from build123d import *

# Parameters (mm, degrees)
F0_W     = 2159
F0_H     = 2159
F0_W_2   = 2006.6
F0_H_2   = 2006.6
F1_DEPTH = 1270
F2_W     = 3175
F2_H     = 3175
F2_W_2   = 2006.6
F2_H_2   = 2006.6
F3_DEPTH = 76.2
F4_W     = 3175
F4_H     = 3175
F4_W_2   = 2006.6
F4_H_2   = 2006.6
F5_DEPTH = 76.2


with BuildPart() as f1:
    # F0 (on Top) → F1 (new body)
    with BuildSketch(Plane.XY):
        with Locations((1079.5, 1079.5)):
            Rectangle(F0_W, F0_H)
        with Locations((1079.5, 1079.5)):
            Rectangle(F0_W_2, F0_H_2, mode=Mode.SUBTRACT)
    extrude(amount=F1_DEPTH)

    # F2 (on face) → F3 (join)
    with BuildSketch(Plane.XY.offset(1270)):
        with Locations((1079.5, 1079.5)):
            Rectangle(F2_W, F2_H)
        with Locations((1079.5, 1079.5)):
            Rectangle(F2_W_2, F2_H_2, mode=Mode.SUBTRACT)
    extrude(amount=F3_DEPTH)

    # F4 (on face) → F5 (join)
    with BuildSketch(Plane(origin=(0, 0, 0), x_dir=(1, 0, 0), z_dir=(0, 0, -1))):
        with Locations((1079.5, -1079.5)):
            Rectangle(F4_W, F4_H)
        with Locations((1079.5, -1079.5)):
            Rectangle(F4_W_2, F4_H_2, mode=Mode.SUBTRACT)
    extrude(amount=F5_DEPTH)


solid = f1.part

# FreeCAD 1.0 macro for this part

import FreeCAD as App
import Part
import Sketcher
Q = App.Units.Quantity

doc = App.newDocument("Part")
body = doc.addObject("PartDesign::Body", "Body")

sketch1 = body.newObject("Sketcher::SketchObject", "Sketch")
sketch1.AttachmentSupport = (doc.getObject("XY_Plane"), [""])
sketch1.MapMode = "FlatFace"
sketch1.addGeometry([
    Part.LineSegment(App.Vector(0, 2159, 0), App.Vector(0, 0, 0)),
    Part.LineSegment(App.Vector(0, 0, 0), App.Vector(2159, 0, 0)),
    Part.LineSegment(App.Vector(2159, 0, 0), App.Vector(2159, 2159, 0)),
    Part.LineSegment(App.Vector(2159, 2159, 0), App.Vector(0, 2159, 0)),
    Part.LineSegment(App.Vector(2083, 76, 0), App.Vector(76, 76, 0)),
    Part.LineSegment(App.Vector(76, 76, 0), App.Vector(76, 2083, 0)),
    Part.LineSegment(App.Vector(76, 2083, 0), App.Vector(2083, 2083, 0)),
    Part.LineSegment(App.Vector(2083, 2083, 0), App.Vector(2083, 76, 0)),
], False)
sketch1.addConstraint([
    Sketcher.Constraint("Coincident", 0, 2, 1, 1),
    Sketcher.Constraint("Coincident", 1, 2, 2, 1),
    Sketcher.Constraint("Coincident", 2, 2, 3, 1),
    Sketcher.Constraint("Coincident", 3, 2, 0, 1),
    Sketcher.Constraint("Coincident", 4, 2, 5, 1),
    Sketcher.Constraint("Coincident", 5, 2, 6, 1),
    Sketcher.Constraint("Coincident", 6, 2, 7, 1),
    Sketcher.Constraint("Coincident", 7, 2, 4, 1),
    Sketcher.Constraint("Vertical", 0),
    Sketcher.Constraint("Horizontal", 1),
    Sketcher.Constraint("Vertical", 2),
    Sketcher.Constraint("Horizontal", 3),
    Sketcher.Constraint("Horizontal", 4),
    Sketcher.Constraint("Vertical", 5),
    Sketcher.Constraint("Horizontal", 6),
    Sketcher.Constraint("Vertical", 7),
    Sketcher.Constraint("Coincident", 0, 2, -1, 1),
    Sketcher.Constraint("Equal", 3, 0),
    Sketcher.Constraint("Equal", 6, 5),
    Sketcher.Constraint("DistanceX", 1, 1, 1, 2, Q("85 in")),
    Sketcher.Constraint("DistanceX", 4, 2, 4, 1, Q("79 in")),
    Sketcher.Constraint("DistanceX", -1, 1, 4, 2, Q("3 in")),
    Sketcher.Constraint("DistanceY", -1, 1, 4, 2, Q("3 in")),
])
pad1 = body.newObject("PartDesign::Pad", "Pad")
pad1.Profile = sketch1
pad1.Length = Q("50 in")

sketch2 = body.newObject("Sketcher::SketchObject", "Sketch001")
sketch2.AttachmentSupport = (doc.getObject("XY_Plane"), [""])
sketch2.MapMode = "FlatFace"
sketch2.AttachmentOffset = App.Placement(App.Vector(0, 0, 50 * 25.4), App.Rotation())
sketch2.addGeometry([
    Part.LineSegment(App.Vector(-508, 2667, 0), App.Vector(-508, -508, 0)),
    Part.LineSegment(App.Vector(-508, -508, 0), App.Vector(2667, -508, 0)),
    Part.LineSegment(App.Vector(2667, -508, 0), App.Vector(2667, 2667, 0)),
    Part.LineSegment(App.Vector(2667, 2667, 0), App.Vector(-508, 2667, 0)),
    Part.LineSegment(App.Vector(2083, 76, 0), App.Vector(76, 76, 0)),
    Part.LineSegment(App.Vector(76, 76, 0), App.Vector(76, 2083, 0)),
    Part.LineSegment(App.Vector(76, 2083, 0), App.Vector(2083, 2083, 0)),
    Part.LineSegment(App.Vector(2083, 2083, 0), App.Vector(2083, 76, 0)),
], False)
sketch2.addConstraint([
    Sketcher.Constraint("Coincident", 0, 2, 1, 1),
    Sketcher.Constraint("Coincident", 1, 2, 2, 1),
    Sketcher.Constraint("Coincident", 2, 2, 3, 1),
    Sketcher.Constraint("Coincident", 3, 2, 0, 1),
    Sketcher.Constraint("Coincident", 4, 2, 5, 1),
    Sketcher.Constraint("Coincident", 5, 2, 6, 1),
    Sketcher.Constraint("Coincident", 6, 2, 7, 1),
    Sketcher.Constraint("Coincident", 7, 2, 4, 1),
    Sketcher.Constraint("Vertical", 0),
    Sketcher.Constraint("Horizontal", 1),
    Sketcher.Constraint("Vertical", 2),
    Sketcher.Constraint("Horizontal", 3),
    Sketcher.Constraint("Horizontal", 4),
    Sketcher.Constraint("Vertical", 5),
    Sketcher.Constraint("Horizontal", 6),
    Sketcher.Constraint("Vertical", 7),
    Sketcher.Constraint("Equal", 3, 0),
    Sketcher.Constraint("Equal", 6, 5),
    Sketcher.Constraint("DistanceX", 1, 1, 1, 2, Q("125 in")),
    Sketcher.Constraint("DistanceX", 4, 2, 4, 1, Q("79 in")),
    Sketcher.Constraint("DistanceX", 0, 2, -1, 1, Q("20 in")),
    Sketcher.Constraint("DistanceY", 0, 2, -1, 1, Q("20 in")),
    Sketcher.Constraint("DistanceX", -1, 1, 4, 2, Q("3 in")),
    Sketcher.Constraint("DistanceY", -1, 1, 4, 2, Q("3 in")),
])
pad2 = body.newObject("PartDesign::Pad", "Pad001")
pad2.Profile = sketch2
pad2.Length = Q("3 in")

sketch3 = body.newObject("Sketcher::SketchObject", "Sketch002")
sketch3.AttachmentSupport = (doc.getObject("XY_Plane"), [""])
sketch3.MapMode = "FlatFace"
sketch3.addGeometry([
    Part.LineSegment(App.Vector(-508, -508, 0), App.Vector(-508, 2667, 0)),
    Part.LineSegment(App.Vector(-508, 2667, 0), App.Vector(2667, 2667, 0)),
    Part.LineSegment(App.Vector(2667, 2667, 0), App.Vector(2667, -508, 0)),
    Part.LineSegment(App.Vector(2667, -508, 0), App.Vector(-508, -508, 0)),
    Part.LineSegment(App.Vector(2083, 2083, 0), App.Vector(76, 2083, 0)),
    Part.LineSegment(App.Vector(76, 2083, 0), App.Vector(76, 76, 0)),
    Part.LineSegment(App.Vector(76, 76, 0), App.Vector(2083, 76, 0)),
    Part.LineSegment(App.Vector(2083, 76, 0), App.Vector(2083, 2083, 0)),
], False)
sketch3.addConstraint([
    Sketcher.Constraint("Coincident", 0, 2, 1, 1),
    Sketcher.Constraint("Coincident", 1, 2, 2, 1),
    Sketcher.Constraint("Coincident", 2, 2, 3, 1),
    Sketcher.Constraint("Coincident", 3, 2, 0, 1),
    Sketcher.Constraint("Coincident", 4, 2, 5, 1),
    Sketcher.Constraint("Coincident", 5, 2, 6, 1),
    Sketcher.Constraint("Coincident", 6, 2, 7, 1),
    Sketcher.Constraint("Coincident", 7, 2, 4, 1),
    Sketcher.Constraint("Vertical", 0),
    Sketcher.Constraint("Horizontal", 1),
    Sketcher.Constraint("Vertical", 2),
    Sketcher.Constraint("Horizontal", 3),
    Sketcher.Constraint("Horizontal", 4),
    Sketcher.Constraint("Vertical", 5),
    Sketcher.Constraint("Horizontal", 6),
    Sketcher.Constraint("Vertical", 7),
    Sketcher.Constraint("Equal", 3, 0),
    Sketcher.Constraint("Equal", 6, 5),
    Sketcher.Constraint("DistanceX", 1, 1, 1, 2, Q("125 in")),
    Sketcher.Constraint("DistanceX", 4, 2, 4, 1, Q("79 in")),
    Sketcher.Constraint("DistanceX", 0, 2, -1, 1, Q("20 in")),
    Sketcher.Constraint("DistanceY", -1, 1, 0, 2, Q("105 in")),
    Sketcher.Constraint("DistanceX", -1, 1, 4, 2, Q("3 in")),
    Sketcher.Constraint("DistanceY", -1, 1, 4, 2, Q("82 in")),
])
pad3 = body.newObject("PartDesign::Pad", "Pad002")
pad3.Profile = sketch3
pad3.Length = Q("3 in")
pad3.Reversed = True

doc.recompute()
